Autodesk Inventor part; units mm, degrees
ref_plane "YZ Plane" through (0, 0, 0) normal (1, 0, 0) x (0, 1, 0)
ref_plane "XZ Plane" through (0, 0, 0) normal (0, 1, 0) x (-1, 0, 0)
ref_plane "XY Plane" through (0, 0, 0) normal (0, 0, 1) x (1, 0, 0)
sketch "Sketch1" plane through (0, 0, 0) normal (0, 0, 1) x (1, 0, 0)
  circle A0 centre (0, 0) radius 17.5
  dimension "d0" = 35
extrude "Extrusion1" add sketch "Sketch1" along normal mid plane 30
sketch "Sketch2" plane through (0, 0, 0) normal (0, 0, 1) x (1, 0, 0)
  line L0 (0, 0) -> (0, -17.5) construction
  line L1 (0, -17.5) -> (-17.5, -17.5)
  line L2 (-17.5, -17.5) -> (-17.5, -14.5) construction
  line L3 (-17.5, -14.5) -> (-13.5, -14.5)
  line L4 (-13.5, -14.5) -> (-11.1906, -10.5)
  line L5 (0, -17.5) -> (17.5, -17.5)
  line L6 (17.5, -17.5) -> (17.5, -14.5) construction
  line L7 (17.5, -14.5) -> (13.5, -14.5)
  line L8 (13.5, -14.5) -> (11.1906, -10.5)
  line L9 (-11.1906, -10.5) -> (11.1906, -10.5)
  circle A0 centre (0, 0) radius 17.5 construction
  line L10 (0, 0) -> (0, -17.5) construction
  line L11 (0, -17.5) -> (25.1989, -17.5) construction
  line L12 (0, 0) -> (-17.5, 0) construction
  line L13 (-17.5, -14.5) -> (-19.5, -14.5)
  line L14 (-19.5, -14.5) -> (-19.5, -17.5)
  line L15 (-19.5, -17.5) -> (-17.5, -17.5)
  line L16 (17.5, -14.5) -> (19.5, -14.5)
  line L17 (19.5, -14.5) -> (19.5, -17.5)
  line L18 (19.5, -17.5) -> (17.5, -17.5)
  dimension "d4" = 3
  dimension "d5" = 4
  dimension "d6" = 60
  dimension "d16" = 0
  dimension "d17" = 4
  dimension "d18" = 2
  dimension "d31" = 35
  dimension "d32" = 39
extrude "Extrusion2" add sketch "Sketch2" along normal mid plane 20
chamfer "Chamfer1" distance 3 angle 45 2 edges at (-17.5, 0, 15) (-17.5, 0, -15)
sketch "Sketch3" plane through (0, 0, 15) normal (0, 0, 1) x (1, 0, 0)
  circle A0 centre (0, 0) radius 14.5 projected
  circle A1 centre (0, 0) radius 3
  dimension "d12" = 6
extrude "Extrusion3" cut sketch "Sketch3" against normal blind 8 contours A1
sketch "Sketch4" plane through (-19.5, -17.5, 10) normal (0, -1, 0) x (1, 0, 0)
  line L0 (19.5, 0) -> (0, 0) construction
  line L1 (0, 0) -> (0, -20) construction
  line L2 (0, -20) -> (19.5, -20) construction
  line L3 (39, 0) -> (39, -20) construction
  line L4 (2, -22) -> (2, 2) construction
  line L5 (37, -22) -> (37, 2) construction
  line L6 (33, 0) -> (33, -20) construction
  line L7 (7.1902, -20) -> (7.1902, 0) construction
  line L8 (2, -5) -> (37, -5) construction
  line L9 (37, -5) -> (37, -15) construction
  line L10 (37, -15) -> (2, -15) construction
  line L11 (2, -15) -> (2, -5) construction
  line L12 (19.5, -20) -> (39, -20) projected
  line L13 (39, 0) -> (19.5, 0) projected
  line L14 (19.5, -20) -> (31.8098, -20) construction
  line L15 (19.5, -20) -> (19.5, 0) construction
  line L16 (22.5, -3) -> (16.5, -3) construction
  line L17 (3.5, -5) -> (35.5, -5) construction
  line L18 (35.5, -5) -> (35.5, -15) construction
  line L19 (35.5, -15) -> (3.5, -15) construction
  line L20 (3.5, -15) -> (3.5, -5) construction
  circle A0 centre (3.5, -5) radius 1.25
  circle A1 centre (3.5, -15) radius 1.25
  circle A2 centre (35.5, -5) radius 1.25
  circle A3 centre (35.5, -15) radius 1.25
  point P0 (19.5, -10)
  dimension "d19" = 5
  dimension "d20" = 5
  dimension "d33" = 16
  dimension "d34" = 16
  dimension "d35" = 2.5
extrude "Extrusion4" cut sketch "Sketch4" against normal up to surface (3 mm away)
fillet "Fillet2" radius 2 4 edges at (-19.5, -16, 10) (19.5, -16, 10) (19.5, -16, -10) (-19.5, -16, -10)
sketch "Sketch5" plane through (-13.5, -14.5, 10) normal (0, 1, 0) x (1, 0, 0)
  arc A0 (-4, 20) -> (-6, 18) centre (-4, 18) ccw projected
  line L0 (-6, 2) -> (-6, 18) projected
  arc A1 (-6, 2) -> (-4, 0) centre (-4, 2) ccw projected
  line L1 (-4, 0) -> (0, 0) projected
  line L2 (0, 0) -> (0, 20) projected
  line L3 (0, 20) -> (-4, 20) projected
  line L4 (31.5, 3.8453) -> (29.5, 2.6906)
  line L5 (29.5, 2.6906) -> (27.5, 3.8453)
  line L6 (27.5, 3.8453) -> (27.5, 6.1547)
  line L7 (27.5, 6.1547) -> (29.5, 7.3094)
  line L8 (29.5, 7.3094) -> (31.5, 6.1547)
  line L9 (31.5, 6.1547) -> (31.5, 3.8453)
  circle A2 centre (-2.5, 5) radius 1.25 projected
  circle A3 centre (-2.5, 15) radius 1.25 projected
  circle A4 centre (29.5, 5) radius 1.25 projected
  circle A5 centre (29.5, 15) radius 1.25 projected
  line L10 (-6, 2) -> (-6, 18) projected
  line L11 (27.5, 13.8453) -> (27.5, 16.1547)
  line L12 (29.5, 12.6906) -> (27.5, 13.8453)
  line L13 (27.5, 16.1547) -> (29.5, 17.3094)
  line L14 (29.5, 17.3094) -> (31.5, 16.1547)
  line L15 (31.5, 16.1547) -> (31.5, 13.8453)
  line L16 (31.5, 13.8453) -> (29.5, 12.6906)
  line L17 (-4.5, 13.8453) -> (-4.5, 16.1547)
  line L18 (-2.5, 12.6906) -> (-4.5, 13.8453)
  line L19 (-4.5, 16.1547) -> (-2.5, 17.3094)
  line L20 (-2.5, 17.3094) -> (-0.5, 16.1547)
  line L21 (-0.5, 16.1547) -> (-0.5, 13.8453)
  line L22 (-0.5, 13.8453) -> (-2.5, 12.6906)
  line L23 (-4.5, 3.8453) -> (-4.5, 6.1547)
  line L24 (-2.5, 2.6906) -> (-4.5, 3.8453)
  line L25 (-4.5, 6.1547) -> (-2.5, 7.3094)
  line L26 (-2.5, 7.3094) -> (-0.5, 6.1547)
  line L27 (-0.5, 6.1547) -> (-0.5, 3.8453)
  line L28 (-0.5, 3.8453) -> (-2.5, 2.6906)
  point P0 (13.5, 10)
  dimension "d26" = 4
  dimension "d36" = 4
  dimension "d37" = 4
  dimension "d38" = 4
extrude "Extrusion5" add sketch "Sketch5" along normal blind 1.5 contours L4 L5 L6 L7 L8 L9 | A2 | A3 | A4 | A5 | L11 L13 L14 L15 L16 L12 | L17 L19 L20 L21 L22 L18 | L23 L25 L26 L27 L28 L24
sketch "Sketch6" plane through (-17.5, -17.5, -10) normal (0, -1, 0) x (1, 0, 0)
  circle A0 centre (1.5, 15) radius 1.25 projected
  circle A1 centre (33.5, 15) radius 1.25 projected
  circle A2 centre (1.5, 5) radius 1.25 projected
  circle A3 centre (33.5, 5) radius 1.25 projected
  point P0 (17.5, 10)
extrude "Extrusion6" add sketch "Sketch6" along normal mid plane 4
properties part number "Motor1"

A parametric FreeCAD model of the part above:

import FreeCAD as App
import Part
import Sketcher
Q = App.Units.Quantity


def edges_at(feature, points):
    """Names of the edges that pass closest to the given points."""
    edges = feature.Shape.Edges
    near = lambda p: min(range(len(edges)), key=lambda i: edges[i].distToShape(Part.Vertex(*p))[0])
    return sorted({f"Edge{near(p) + 1}" for p in points})

doc = App.newDocument("Part")
body = doc.addObject("PartDesign::Body", "Body")

sketch1 = body.newObject("Sketcher::SketchObject", "Sketch")
sketch1.AttachmentSupport = (doc.getObject("XY_Plane"), [""])
sketch1.MapMode = "FlatFace"
sketch1.addGeometry(Part.Circle(App.Vector(0, 0, 0), App.Vector(0, 0, 1), 18), False)
sketch1.addConstraint(Sketcher.Constraint("Coincident", 0, 3, -1, 1))
sketch1.addConstraint(Sketcher.Constraint("Diameter", 0, Q("35 mm")))
pad1 = body.newObject("PartDesign::Pad", "Pad")
pad1.Profile = sketch1
pad1.Length = 30
pad1.Midplane = True

sketch2 = body.newObject("Sketcher::SketchObject", "Sketch001")
sketch2.AttachmentSupport = (doc.getObject("XY_Plane"), [""])
sketch2.MapMode = "FlatFace"
sketch2.addGeometry(Part.LineSegment(App.Vector(-19.5, -17.5, 0), App.Vector(19.5, -17.5, 0)), False)
sketch2.addGeometry(Part.LineSegment(App.Vector(19.5, -17.5, 0), App.Vector(19.5, -14.5, 0)), False)
sketch2.addGeometry(Part.LineSegment(App.Vector(19.5, -14.5, 0), App.Vector(13.5, -14.5, 0)), False)
sketch2.addGeometry(Part.LineSegment(App.Vector(13.5, -14.5, 0), App.Vector(11.2, -10.5, 0)), False)
sketch2.addGeometry(Part.LineSegment(App.Vector(11.2, -10.5, 0), App.Vector(-11.2, -10.5, 0)), False)
sketch2.addGeometry(Part.LineSegment(App.Vector(-11.2, -10.5, 0), App.Vector(-13.5, -14.5, 0)), False)
sketch2.addGeometry(Part.LineSegment(App.Vector(-13.5, -14.5, 0), App.Vector(-19.5, -14.5, 0)), False)
sketch2.addGeometry(Part.LineSegment(App.Vector(-19.5, -14.5, 0), App.Vector(-19.5, -17.5, 0)), False)
sketch2.addConstraint(Sketcher.Constraint("Coincident", 0, 2, 1, 1))
sketch2.addConstraint(Sketcher.Constraint("Coincident", 1, 2, 2, 1))
sketch2.addConstraint(Sketcher.Constraint("Coincident", 2, 2, 3, 1))
sketch2.addConstraint(Sketcher.Constraint("Coincident", 3, 2, 4, 1))
sketch2.addConstraint(Sketcher.Constraint("Coincident", 4, 2, 5, 1))
sketch2.addConstraint(Sketcher.Constraint("Coincident", 5, 2, 6, 1))
sketch2.addConstraint(Sketcher.Constraint("Coincident", 6, 2, 7, 1))
sketch2.addConstraint(Sketcher.Constraint("Coincident", 7, 2, 0, 1))
sketch2.addConstraint(Sketcher.Constraint("Horizontal", 0))
sketch2.addConstraint(Sketcher.Constraint("Vertical", 1))
sketch2.addConstraint(Sketcher.Constraint("Horizontal", 2))
sketch2.addConstraint(Sketcher.Constraint("Horizontal", 4))
sketch2.addConstraint(Sketcher.Constraint("Horizontal", 6))
sketch2.addConstraint(Sketcher.Constraint("Vertical", 7))
sketch2.addConstraint(Sketcher.Constraint("Symmetric", 2, 2, 5, 2, -2))
sketch2.addConstraint(Sketcher.Constraint("Equal", 2, 6))
sketch2.addConstraint(Sketcher.Constraint("Equal", 3, 5))
sketch2.addConstraint(Sketcher.Constraint("DistanceX", 0, 1, 0, 2, Q("39 mm")))
sketch2.addConstraint(Sketcher.Constraint("DistanceY", 1, 1, 1, 2, Q("3 mm")))
sketch2.addConstraint(Sketcher.Constraint("DistanceY", 2, 2, 3, 2, Q("4 mm")))
sketch2.addConstraint(Sketcher.Constraint("DistanceX", 2, 2, 2, 1, Q("6 mm")))
sketch2.addConstraint(Sketcher.Constraint("Angle", 3, Q("120 deg")))
sketch2.addConstraint(Sketcher.Constraint("DistanceY", 0, 2, -1, 1, Q("17.5 mm")))
pad2 = body.newObject("PartDesign::Pad", "Pad001")
pad2.Profile = sketch2
pad2.Length = 20
pad2.Midplane = True
doc.recompute()

chamfer = body.newObject("PartDesign::Chamfer", "Chamfer")
chamfer.Base = (pad2, edges_at(pad2, [(-17.5, 0, 15), (-17.5, 0, -15)]))
chamfer.Size = 3

sketch3 = body.newObject("Sketcher::SketchObject", "Sketch002")
sketch3.AttachmentSupport = (doc.getObject("XY_Plane"), [""])
sketch3.MapMode = "FlatFace"
sketch3.AttachmentOffset = App.Placement(App.Vector(0, 0, 15), App.Rotation())
sketch3.addGeometry(Part.Circle(App.Vector(0, 0, 0), App.Vector(0, 0, 1), 3), False)
sketch3.addConstraint(Sketcher.Constraint("Coincident", 0, 3, -1, 1))
sketch3.addConstraint(Sketcher.Constraint("Diameter", 0, Q("6 mm")))
pocket1 = body.newObject("PartDesign::Pocket", "Pocket")
pocket1.Profile = sketch3
pocket1.Length = 8

sketch4 = body.newObject("Sketcher::SketchObject", "Sketch003")
sketch4.AttachmentSupport = (doc.getObject("XZ_Plane"), [""])
sketch4.MapMode = "FlatFace"
sketch4.AttachmentOffset = App.Placement(App.Vector(0, 0, 17.5), App.Rotation())
sketch4.addGeometry(Part.Circle(App.Vector(-16, 5, 0), App.Vector(0, 0, 1), 1.2), False)
sketch4.addGeometry(Part.Circle(App.Vector(-16, -5, 0), App.Vector(0, 0, 1), 1.2), False)
sketch4.addGeometry(Part.Circle(App.Vector(16, 5, 0), App.Vector(0, 0, 1), 1.2), False)
sketch4.addGeometry(Part.Circle(App.Vector(16, -5, 0), App.Vector(0, 0, 1), 1.2), False)
sketch4.addConstraint(Sketcher.Constraint("Equal", 0, 1))
sketch4.addConstraint(Sketcher.Constraint("Equal", 1, 2))
sketch4.addConstraint(Sketcher.Constraint("Equal", 2, 3))
sketch4.addConstraint(Sketcher.Constraint("Symmetric", 1, 3, 2, 3, -1, 1))
sketch4.addConstraint(Sketcher.Constraint("Symmetric", 0, 3, 3, 3, -1, 1))
sketch4.addConstraint(Sketcher.Constraint("Symmetric", 0, 3, 2, 3, -2))
sketch4.addConstraint(Sketcher.Constraint("Diameter", 0, Q("2.5 mm")))
sketch4.addConstraint(Sketcher.Constraint("DistanceX", 0, 3, -1, 1, Q("16 mm")))
sketch4.addConstraint(Sketcher.Constraint("DistanceY", -1, 1, 0, 3, Q("5 mm")))
pocket2 = body.newObject("PartDesign::Pocket", "Pocket001")
pocket2.Profile = sketch4
pocket2.Length = 3
doc.recompute()

fillet = body.newObject("PartDesign::Fillet", "Fillet")
fillet.Base = (pocket2, edges_at(pocket2, [
    (-19.5, -16, 10),
    (19.5, -16, 10),
    (19.5, -16, -10),
    (-19.5, -16, -10),
]))
fillet.Radius = 2

sketch5 = body.newObject("Sketcher::SketchObject", "Sketch004")
sketch5.AttachmentSupport = (doc.getObject("XZ_Plane"), [""])
sketch5.MapMode = "FlatFace"
sketch5.AttachmentOffset = App.Placement(App.Vector(0, 0, 14.5), App.Rotation())
sketch5.addGeometry(Part.LineSegment(App.Vector(16, 7.3, 0), App.Vector(18, 6.2, 0)), False)
sketch5.addGeometry(Part.LineSegment(App.Vector(18, 6.2, 0), App.Vector(18, 3.8, 0)), False)
sketch5.addGeometry(Part.LineSegment(App.Vector(18, 3.8, 0), App.Vector(16, 2.7, 0)), False)
sketch5.addGeometry(Part.LineSegment(App.Vector(16, 2.7, 0), App.Vector(14, 3.8, 0)), False)
sketch5.addGeometry(Part.LineSegment(App.Vector(14, 3.8, 0), App.Vector(14, 6.2, 0)), False)
sketch5.addGeometry(Part.LineSegment(App.Vector(14, 6.2, 0), App.Vector(16, 7.3, 0)), False)
sketch5.addGeometry(Part.LineSegment(App.Vector(-18, 3.8, 0), App.Vector(-18, 6.2, 0)), False)
sketch5.addGeometry(Part.LineSegment(App.Vector(-18, 6.2, 0), App.Vector(-16, 7.3, 0)), False)
sketch5.addGeometry(Part.LineSegment(App.Vector(-16, 7.3, 0), App.Vector(-14, 6.2, 0)), False)
sketch5.addGeometry(Part.LineSegment(App.Vector(-14, 6.2, 0), App.Vector(-14, 3.8, 0)), False)
sketch5.addGeometry(Part.LineSegment(App.Vector(-14, 3.8, 0), App.Vector(-16, 2.7, 0)), False)
sketch5.addGeometry(Part.LineSegment(App.Vector(-16, 2.7, 0), App.Vector(-18, 3.8, 0)), False)
sketch5.addGeometry(Part.LineSegment(App.Vector(-18, -6.2, 0), App.Vector(-18, -3.8, 0)), False)
sketch5.addGeometry(Part.LineSegment(App.Vector(-18, -3.8, 0), App.Vector(-16, -2.7, 0)), False)
sketch5.addGeometry(Part.LineSegment(App.Vector(-16, -2.7, 0), App.Vector(-14, -3.8, 0)), False)
sketch5.addGeometry(Part.LineSegment(App.Vector(-14, -3.8, 0), App.Vector(-14, -6.2, 0)), False)
sketch5.addGeometry(Part.LineSegment(App.Vector(-14, -6.2, 0), App.Vector(-16, -7.3, 0)), False)
sketch5.addGeometry(Part.LineSegment(App.Vector(-16, -7.3, 0), App.Vector(-18, -6.2, 0)), False)
sketch5.addGeometry(Part.LineSegment(App.Vector(14, -6.2, 0), App.Vector(14, -3.8, 0)), False)
sketch5.addGeometry(Part.LineSegment(App.Vector(14, -3.8, 0), App.Vector(16, -2.7, 0)), False)
sketch5.addGeometry(Part.LineSegment(App.Vector(16, -2.7, 0), App.Vector(18, -3.8, 0)), False)
sketch5.addGeometry(Part.LineSegment(App.Vector(18, -3.8, 0), App.Vector(18, -6.2, 0)), False)
sketch5.addGeometry(Part.LineSegment(App.Vector(18, -6.2, 0), App.Vector(16, -7.3, 0)), False)
sketch5.addGeometry(Part.LineSegment(App.Vector(16, -7.3, 0), App.Vector(14, -6.2, 0)), False)
sketch5.addConstraint(Sketcher.Constraint("Coincident", 0, 2, 1, 1))
sketch5.addConstraint(Sketcher.Constraint("Coincident", 1, 2, 2, 1))
sketch5.addConstraint(Sketcher.Constraint("Coincident", 2, 2, 3, 1))
sketch5.addConstraint(Sketcher.Constraint("Coincident", 3, 2, 4, 1))
sketch5.addConstraint(Sketcher.Constraint("Coincident", 4, 2, 5, 1))
sketch5.addConstraint(Sketcher.Constraint("Coincident", 5, 2, 0, 1))
sketch5.addConstraint(Sketcher.Constraint("Coincident", 6, 2, 7, 1))
sketch5.addConstraint(Sketcher.Constraint("Coincident", 7, 2, 8, 1))
sketch5.addConstraint(Sketcher.Constraint("Coincident", 8, 2, 9, 1))
sketch5.addConstraint(Sketcher.Constraint("Coincident", 9, 2, 10, 1))
sketch5.addConstraint(Sketcher.Constraint("Coincident", 10, 2, 11, 1))
sketch5.addConstraint(Sketcher.Constraint("Coincident", 11, 2, 6, 1))
sketch5.addConstraint(Sketcher.Constraint("Coincident", 12, 2, 13, 1))
sketch5.addConstraint(Sketcher.Constraint("Coincident", 13, 2, 14, 1))
sketch5.addConstraint(Sketcher.Constraint("Coincident", 14, 2, 15, 1))
sketch5.addConstraint(Sketcher.Constraint("Coincident", 15, 2, 16, 1))
sketch5.addConstraint(Sketcher.Constraint("Coincident", 16, 2, 17, 1))
sketch5.addConstraint(Sketcher.Constraint("Coincident", 17, 2, 12, 1))
sketch5.addConstraint(Sketcher.Constraint("Coincident", 18, 2, 19, 1))
sketch5.addConstraint(Sketcher.Constraint("Coincident", 19, 2, 20, 1))
sketch5.addConstraint(Sketcher.Constraint("Coincident", 20, 2, 21, 1))
sketch5.addConstraint(Sketcher.Constraint("Coincident", 21, 2, 22, 1))
sketch5.addConstraint(Sketcher.Constraint("Coincident", 22, 2, 23, 1))
sketch5.addConstraint(Sketcher.Constraint("Coincident", 23, 2, 18, 1))
sketch5.addConstraint(Sketcher.Constraint("Vertical", 1))
sketch5.addConstraint(Sketcher.Constraint("Vertical", 4))
sketch5.addConstraint(Sketcher.Constraint("Vertical", 6))
sketch5.addConstraint(Sketcher.Constraint("Vertical", 9))
sketch5.addConstraint(Sketcher.Constraint("Vertical", 12))
sketch5.addConstraint(Sketcher.Constraint("Vertical", 15))
sketch5.addConstraint(Sketcher.Constraint("Vertical", 18))
sketch5.addConstraint(Sketcher.Constraint("Vertical", 21))
sketch5.addConstraint(Sketcher.Constraint("Symmetric", 1, 2, 12, 2, -1, 1))
sketch5.addConstraint(Sketcher.Constraint("Symmetric", 2, 2, 13, 2, -1, 1))
sketch5.addConstraint(Sketcher.Constraint("Symmetric", 3, 2, 14, 2, -1, 1))
sketch5.addConstraint(Sketcher.Constraint("Symmetric", 5, 2, 16, 2, -1, 1))
sketch5.addConstraint(Sketcher.Constraint("Symmetric", 9, 2, 18, 2, -1, 1))
sketch5.addConstraint(Sketcher.Constraint("Symmetric", 10, 2, 19, 2, -1, 1))
sketch5.addConstraint(Sketcher.Constraint("Symmetric", 11, 2, 20, 2, -1, 1))
sketch5.addConstraint(Sketcher.Constraint("Symmetric", 7, 2, 22, 2, -1, 1))
sketch5.addConstraint(Sketcher.Constraint("Symmetric", 0, 2, 6, 2, -2))
sketch5.addConstraint(Sketcher.Constraint("Symmetric", 5, 2, 7, 2, -2))
sketch5.addConstraint(Sketcher.Constraint("Symmetric", 4, 2, 8, 2, -2))
sketch5.addConstraint(Sketcher.Constraint("Symmetric", 2, 2, 10, 2, -2))
sketch5.addConstraint(Sketcher.Constraint("Parallel", 0, 3))
sketch5.addConstraint(Sketcher.Constraint("Parallel", 2, 5))
sketch5.addConstraint(Sketcher.Constraint("Parallel", 5, 7))
sketch5.addConstraint(Sketcher.Constraint("Parallel", 7, 10))
sketch5.addConstraint(Sketcher.Constraint("Parallel", 8, 11))
sketch5.addConstraint(Sketcher.Constraint("Parallel", 13, 16))
sketch5.addConstraint(Sketcher.Constraint("Parallel", 14, 17))
sketch5.addConstraint(Sketcher.Constraint("Parallel", 19, 22))
sketch5.addConstraint(Sketcher.Constraint("Parallel", 20, 23))
sketch5.addConstraint(Sketcher.Constraint("Horizontal", 1, 2, 3, 2))
sketch5.addConstraint(Sketcher.Constraint("Horizontal", 0, 2, 4, 2))
sketch5.addConstraint(Sketcher.Constraint("DistanceX", 3, 2, 1, 2, Q("4 mm")))
sketch5.addConstraint(Sketcher.Constraint("Angle", 0, Q("-30 deg")))
sketch5.addConstraint(Sketcher.Constraint("DistanceX", -1, 1, 0, 2, Q("18 mm")))
sketch5.addConstraint(Sketcher.Constraint("DistanceY", 12, 2, 6, 2, Q("10 mm")))
sketch5.addConstraint(Sketcher.Constraint("DistanceY", 1, 2, 1, 1, Q("2.3094 mm")))
pad3 = body.newObject("PartDesign::Pad", "Pad002")
pad3.Profile = sketch5
pad3.Length = 1.5
pad3.Reversed = True

sketch6 = body.newObject("Sketcher::SketchObject", "Sketch005")
sketch6.AttachmentSupport = (doc.getObject("XZ_Plane"), [""])
sketch6.MapMode = "FlatFace"
sketch6.AttachmentOffset = App.Placement(App.Vector(0, 0, 17.5), App.Rotation())
sketch6.addGeometry(Part.Circle(App.Vector(-16, 5, 0), App.Vector(0, 0, 1), 1.2), False)
sketch6.addGeometry(Part.Circle(App.Vector(16, 5, 0), App.Vector(0, 0, 1), 1.2), False)
sketch6.addGeometry(Part.Circle(App.Vector(-16, -5, 0), App.Vector(0, 0, 1), 1.2), False)
sketch6.addGeometry(Part.Circle(App.Vector(16, -5, 0), App.Vector(0, 0, 1), 1.2), False)
sketch6.addConstraint(Sketcher.Constraint("Equal", 0, 1))
sketch6.addConstraint(Sketcher.Constraint("Equal", 1, 2))
sketch6.addConstraint(Sketcher.Constraint("Equal", 2, 3))
sketch6.addConstraint(Sketcher.Constraint("Symmetric", 1, 3, 2, 3, -1, 1))
sketch6.addConstraint(Sketcher.Constraint("Symmetric", 0, 3, 3, 3, -1, 1))
sketch6.addConstraint(Sketcher.Constraint("Symmetric", 0, 3, 1, 3, -2))
sketch6.addConstraint(Sketcher.Constraint("Diameter", 0, Q("2.5 mm")))
sketch6.addConstraint(Sketcher.Constraint("DistanceX", 0, 3, -1, 1, Q("16 mm")))
sketch6.addConstraint(Sketcher.Constraint("DistanceY", -1, 1, 0, 3, Q("5 mm")))
pad4 = body.newObject("PartDesign::Pad", "Pad003")
pad4.Profile = sketch6
pad4.Length = 4
pad4.Midplane = True

doc.recompute()
